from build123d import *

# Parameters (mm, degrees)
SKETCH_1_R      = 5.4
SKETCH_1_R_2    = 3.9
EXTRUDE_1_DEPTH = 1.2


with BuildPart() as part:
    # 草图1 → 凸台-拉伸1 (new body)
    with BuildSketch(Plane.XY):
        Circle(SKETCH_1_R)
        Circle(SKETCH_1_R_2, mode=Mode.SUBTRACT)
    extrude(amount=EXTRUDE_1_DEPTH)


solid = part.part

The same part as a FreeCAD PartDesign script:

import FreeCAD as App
import Part
import Sketcher

V = App.Vector
Q = App.Units.Quantity

doc = App.newDocument("Part")
body = doc.addObject("PartDesign::Body", "Body")

sketch1 = body.newObject("Sketcher::SketchObject", "Sketch")
sketch1.AttachmentSupport = (doc.getObject("XY_Plane"), [""])
sketch1.MapMode = "FlatFace"
sketch1.addGeometry([
    Part.Circle(V(0, 0, 0), V(0, 0, 1), 5.4),
    Part.Circle(V(0, 0, 0), V(0, 0, 1), 3.9),
], False)
sketch1.addConstraint([
    Sketcher.Constraint("Coincident", 0, 3, -1, 1),
    Sketcher.Constraint("Coincident", 1, 3, -1, 1),
    Sketcher.Constraint("Diameter", 0, Q("10.8 mm")),
    Sketcher.Constraint("Diameter", 1, Q("7.8 mm")),
])
pad1 = body.newObject("PartDesign::Pad", "Pad")
pad1.Profile = sketch1
pad1.Length = 1.2

doc.recompute()
